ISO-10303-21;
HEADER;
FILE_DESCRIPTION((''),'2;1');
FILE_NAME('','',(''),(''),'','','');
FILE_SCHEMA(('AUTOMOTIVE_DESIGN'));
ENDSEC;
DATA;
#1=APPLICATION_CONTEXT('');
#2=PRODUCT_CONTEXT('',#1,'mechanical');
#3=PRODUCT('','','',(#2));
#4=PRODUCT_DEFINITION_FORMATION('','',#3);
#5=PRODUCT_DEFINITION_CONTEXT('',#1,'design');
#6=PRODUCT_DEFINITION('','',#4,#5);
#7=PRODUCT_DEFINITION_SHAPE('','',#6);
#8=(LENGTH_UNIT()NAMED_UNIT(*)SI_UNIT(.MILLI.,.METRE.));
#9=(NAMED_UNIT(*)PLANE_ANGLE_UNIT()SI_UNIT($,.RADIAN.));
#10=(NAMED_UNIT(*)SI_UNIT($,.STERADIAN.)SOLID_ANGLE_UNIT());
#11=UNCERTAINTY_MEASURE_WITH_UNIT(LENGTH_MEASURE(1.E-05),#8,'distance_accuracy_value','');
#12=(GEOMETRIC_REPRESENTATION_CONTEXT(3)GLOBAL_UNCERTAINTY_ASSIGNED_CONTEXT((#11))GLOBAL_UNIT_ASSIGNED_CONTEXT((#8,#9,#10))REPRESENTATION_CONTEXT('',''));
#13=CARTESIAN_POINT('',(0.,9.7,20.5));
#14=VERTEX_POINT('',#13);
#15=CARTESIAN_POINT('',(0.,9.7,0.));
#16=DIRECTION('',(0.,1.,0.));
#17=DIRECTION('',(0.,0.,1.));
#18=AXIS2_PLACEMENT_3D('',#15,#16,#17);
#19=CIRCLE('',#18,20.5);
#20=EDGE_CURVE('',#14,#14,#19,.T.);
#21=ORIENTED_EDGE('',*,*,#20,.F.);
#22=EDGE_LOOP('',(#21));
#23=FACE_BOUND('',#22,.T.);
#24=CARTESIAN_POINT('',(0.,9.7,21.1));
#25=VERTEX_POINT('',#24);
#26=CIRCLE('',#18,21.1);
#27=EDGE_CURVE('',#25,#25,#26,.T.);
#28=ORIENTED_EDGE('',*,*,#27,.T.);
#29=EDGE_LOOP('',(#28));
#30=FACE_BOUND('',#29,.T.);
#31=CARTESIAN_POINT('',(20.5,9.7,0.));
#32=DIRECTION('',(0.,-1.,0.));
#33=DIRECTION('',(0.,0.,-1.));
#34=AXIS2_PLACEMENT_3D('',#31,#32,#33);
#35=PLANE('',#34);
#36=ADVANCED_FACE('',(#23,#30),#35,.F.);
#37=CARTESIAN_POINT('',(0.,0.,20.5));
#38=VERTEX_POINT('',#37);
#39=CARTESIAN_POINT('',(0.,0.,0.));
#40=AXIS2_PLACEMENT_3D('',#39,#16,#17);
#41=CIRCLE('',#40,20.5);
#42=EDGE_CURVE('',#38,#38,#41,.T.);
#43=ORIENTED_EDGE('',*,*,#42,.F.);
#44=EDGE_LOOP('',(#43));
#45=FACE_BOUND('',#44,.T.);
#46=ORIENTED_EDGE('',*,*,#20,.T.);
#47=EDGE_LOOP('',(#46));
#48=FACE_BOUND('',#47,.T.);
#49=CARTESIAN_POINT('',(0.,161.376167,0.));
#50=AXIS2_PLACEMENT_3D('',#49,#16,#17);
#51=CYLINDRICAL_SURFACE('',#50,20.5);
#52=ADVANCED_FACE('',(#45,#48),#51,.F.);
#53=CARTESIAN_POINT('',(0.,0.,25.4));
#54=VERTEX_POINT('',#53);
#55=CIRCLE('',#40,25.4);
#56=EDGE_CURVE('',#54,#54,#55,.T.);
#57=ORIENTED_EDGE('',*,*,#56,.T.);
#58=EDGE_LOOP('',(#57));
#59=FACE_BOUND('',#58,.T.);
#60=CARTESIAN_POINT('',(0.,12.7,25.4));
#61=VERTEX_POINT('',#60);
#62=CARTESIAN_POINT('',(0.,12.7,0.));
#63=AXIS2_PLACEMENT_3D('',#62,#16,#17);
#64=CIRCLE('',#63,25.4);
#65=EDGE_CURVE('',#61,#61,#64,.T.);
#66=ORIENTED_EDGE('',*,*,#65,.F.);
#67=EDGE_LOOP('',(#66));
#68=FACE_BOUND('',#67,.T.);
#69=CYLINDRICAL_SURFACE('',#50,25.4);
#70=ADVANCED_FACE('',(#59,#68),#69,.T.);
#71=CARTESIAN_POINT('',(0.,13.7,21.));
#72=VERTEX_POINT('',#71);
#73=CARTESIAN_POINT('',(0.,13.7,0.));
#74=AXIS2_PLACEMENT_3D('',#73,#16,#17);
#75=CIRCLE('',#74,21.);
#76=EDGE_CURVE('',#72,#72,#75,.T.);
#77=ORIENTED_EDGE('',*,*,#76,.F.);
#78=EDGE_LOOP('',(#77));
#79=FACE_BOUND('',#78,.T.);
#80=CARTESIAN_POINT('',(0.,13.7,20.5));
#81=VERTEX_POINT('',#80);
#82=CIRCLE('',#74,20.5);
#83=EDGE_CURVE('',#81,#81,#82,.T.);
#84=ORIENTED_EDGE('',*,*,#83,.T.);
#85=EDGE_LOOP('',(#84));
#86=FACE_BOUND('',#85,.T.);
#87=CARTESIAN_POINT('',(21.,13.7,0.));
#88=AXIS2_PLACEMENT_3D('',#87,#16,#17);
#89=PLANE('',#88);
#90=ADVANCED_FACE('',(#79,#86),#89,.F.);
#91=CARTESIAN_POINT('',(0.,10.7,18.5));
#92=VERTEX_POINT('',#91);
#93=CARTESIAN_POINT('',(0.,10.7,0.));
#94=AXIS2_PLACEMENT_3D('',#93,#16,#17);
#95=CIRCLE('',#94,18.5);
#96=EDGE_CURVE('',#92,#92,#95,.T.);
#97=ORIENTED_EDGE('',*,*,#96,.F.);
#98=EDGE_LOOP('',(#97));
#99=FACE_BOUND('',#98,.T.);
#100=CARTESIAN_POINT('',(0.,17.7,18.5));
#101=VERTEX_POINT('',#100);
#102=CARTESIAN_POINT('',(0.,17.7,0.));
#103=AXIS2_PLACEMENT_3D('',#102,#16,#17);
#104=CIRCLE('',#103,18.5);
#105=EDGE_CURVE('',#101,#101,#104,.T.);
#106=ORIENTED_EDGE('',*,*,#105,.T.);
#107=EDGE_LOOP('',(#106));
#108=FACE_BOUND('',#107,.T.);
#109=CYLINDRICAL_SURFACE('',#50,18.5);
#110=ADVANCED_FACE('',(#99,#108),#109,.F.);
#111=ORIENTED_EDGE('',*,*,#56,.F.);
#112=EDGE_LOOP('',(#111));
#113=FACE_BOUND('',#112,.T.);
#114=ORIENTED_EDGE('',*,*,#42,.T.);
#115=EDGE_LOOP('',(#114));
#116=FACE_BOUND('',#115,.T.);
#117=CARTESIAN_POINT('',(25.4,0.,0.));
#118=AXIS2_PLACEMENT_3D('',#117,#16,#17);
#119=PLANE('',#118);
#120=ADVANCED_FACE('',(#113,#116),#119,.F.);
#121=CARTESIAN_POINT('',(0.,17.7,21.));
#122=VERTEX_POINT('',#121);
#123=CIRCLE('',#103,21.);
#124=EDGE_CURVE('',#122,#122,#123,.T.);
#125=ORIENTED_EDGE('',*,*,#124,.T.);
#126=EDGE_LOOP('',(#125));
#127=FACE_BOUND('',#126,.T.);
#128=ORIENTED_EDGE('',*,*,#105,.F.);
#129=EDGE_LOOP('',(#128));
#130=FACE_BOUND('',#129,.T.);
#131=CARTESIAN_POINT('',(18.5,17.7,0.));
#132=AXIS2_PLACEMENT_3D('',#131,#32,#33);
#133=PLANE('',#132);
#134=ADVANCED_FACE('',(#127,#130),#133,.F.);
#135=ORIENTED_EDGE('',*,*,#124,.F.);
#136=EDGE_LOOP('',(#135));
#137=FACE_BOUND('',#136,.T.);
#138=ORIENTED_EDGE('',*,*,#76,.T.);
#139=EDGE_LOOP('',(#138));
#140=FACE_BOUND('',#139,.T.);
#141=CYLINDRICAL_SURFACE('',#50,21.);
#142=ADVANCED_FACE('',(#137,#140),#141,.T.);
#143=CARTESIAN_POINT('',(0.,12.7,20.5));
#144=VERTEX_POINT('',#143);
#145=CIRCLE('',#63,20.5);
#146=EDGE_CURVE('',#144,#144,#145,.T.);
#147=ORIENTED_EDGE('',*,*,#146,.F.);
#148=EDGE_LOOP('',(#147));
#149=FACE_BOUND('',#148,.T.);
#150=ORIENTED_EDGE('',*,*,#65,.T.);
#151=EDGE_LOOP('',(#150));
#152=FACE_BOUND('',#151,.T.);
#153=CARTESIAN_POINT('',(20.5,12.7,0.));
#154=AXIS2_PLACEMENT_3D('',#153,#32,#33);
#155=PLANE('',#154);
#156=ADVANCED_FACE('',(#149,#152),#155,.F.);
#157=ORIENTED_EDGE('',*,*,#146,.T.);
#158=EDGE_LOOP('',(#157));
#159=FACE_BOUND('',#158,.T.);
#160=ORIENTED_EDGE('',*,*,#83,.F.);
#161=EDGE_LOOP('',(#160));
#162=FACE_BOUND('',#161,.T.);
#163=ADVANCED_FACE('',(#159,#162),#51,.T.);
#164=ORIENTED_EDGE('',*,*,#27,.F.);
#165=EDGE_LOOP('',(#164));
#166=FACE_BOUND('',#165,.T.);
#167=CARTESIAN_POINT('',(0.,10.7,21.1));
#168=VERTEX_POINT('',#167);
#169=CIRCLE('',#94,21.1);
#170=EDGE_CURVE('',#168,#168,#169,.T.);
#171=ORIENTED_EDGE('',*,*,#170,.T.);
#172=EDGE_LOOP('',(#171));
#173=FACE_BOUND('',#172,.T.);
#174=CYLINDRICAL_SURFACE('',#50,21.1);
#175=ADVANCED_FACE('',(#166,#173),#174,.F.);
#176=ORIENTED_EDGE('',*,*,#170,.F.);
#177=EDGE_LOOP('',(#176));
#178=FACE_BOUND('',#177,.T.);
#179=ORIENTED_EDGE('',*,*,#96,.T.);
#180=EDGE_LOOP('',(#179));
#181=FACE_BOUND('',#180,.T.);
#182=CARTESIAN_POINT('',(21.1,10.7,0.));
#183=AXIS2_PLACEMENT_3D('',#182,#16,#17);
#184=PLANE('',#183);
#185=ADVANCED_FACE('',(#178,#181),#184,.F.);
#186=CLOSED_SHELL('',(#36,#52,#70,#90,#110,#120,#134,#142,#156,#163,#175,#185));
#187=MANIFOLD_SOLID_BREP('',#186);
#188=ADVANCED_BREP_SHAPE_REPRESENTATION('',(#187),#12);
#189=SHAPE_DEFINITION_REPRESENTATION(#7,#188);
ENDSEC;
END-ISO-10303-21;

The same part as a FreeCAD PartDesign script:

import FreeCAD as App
import Part
import Sketcher

V = App.Vector

doc = App.newDocument("Part")
params = doc.addObject("Spreadsheet::Sheet", "Params")
for row, (alias, value) in enumerate([
    ("sketch1_height", "7 mm"),
    ("sketch1_height2", "1 mm"),
    ("sketch1_height3", "4 mm"),
    ("sketch1_width", "2.5 mm"),
    ("sketch1_width2", "2.6 mm"),
    ("revolution_angle", "360 deg"),
], start=1):
    params.set(f"A{row}", alias)
    params.set(f"B{row}", "=" + value)
    params.setAlias(f"B{row}", alias)

body = doc.addObject("PartDesign::Body", "Body")

# Sketch on XY plane
sketch1 = body.newObject("Sketcher::SketchObject", "Sketch")
sketch1.AttachmentSupport = (doc.getObject("XY_Plane"), [""])
sketch1.MapMode = "FlatFace"
sketch1.addGeometry([
    Part.LineSegment(V(21, 17.7, 0), V(18.5, 17.7, 0)),  # 0
    Part.LineSegment(V(18.5, 17.7, 0), V(18.5, 10.7, 0)),  # 1
    Part.LineSegment(V(18.5, 10.7, 0), V(21.1, 10.7, 0)),  # 2
    Part.LineSegment(V(21.1, 10.7, 0), V(21.1, 9.7, 0)),  # 3
    Part.LineSegment(V(21.1, 9.7, 0), V(20.5, 9.7, 0)),  # 4
    Part.LineSegment(V(20.5, 9.7, 0), V(20.5, 0, 0)),  # 5
    Part.LineSegment(V(20.5, 0, 0), V(25.4, 0, 0)),  # 6
    Part.LineSegment(V(25.4, 0, 0), V(25.4, 12.7, 0)),  # 7
    Part.LineSegment(V(25.4, 12.7, 0), V(20.5, 12.7, 0)),  # 8
    Part.LineSegment(V(20.5, 12.7, 0), V(20.5, 13.7, 0)),  # 9
    Part.LineSegment(V(20.5, 13.7, 0), V(21, 13.7, 0)),  # 10
    Part.LineSegment(V(21, 13.7, 0), V(21, 17.7, 0)),  # 11
], False)
sketch1.addConstraint([
    Sketcher.Constraint("Coincident", 0, 2, 1, 1),
    Sketcher.Constraint("Coincident", 1, 2, 2, 1),
    Sketcher.Constraint("Coincident", 2, 2, 3, 1),
    Sketcher.Constraint("Coincident", 3, 2, 4, 1),
    Sketcher.Constraint("Coincident", 4, 2, 5, 1),
    Sketcher.Constraint("Coincident", 5, 2, 6, 1),
    Sketcher.Constraint("Coincident", 6, 2, 7, 1),
    Sketcher.Constraint("Coincident", 7, 2, 8, 1),
    Sketcher.Constraint("Coincident", 8, 2, 9, 1),
    Sketcher.Constraint("Coincident", 9, 2, 10, 1),
    Sketcher.Constraint("Coincident", 10, 2, 11, 1),
    Sketcher.Constraint("Coincident", 11, 2, 0, 1),
    Sketcher.Constraint("Horizontal", 0),
    Sketcher.Constraint("Vertical", 1),
    Sketcher.Constraint("Horizontal", 2),
    Sketcher.Constraint("Vertical", 3),
    Sketcher.Constraint("Horizontal", 4),
    Sketcher.Constraint("Vertical", 5),
    Sketcher.Constraint("Horizontal", 6),
    Sketcher.Constraint("Vertical", 7),
    Sketcher.Constraint("Horizontal", 8),
    Sketcher.Constraint("Vertical", 9),
    Sketcher.Constraint("Horizontal", 10),
    Sketcher.Constraint("Vertical", 11),
    Sketcher.Constraint("PointOnObject", 5, 2, -1),
    Sketcher.Constraint("Vertical", 5, 2, 8, 2),
    Sketcher.Constraint("Equal", 3, 9),
    Sketcher.Constraint("DistanceY", 1, 2, 1, 1, 7.0),
    Sketcher.Constraint("DistanceY", 3, 2, 3, 1, 1.0),
    Sketcher.Constraint("DistanceY", 11, 1, 11, 2, 4.0),
    Sketcher.Constraint("DistanceX", 0, 2, 0, 1, 2.5),
    Sketcher.Constraint("DistanceX", 2, 1, 2, 2, 2.6),
    Sketcher.Constraint("DistanceX", 4, 2, 4, 1, 0.6),
    Sketcher.Constraint("DistanceX", 6, 1, 6, 2, 4.9),
    Sketcher.Constraint("DistanceY", 5, 2, 5, 1, 9.7),
    Sketcher.Constraint("DistanceX", -1, 1, 10, 2, 21.0),
])
sketch1.setExpression("Constraints[27]", "Params.sketch1_height")
sketch1.setExpression("Constraints[28]", "Params.sketch1_height2")
sketch1.setExpression("Constraints[29]", "Params.sketch1_height3")
sketch1.setExpression("Constraints[30]", "Params.sketch1_width")
sketch1.setExpression("Constraints[31]", "Params.sketch1_width2")
revolution = body.newObject("PartDesign::Revolution", "Revolution")
revolution.Profile = sketch1
revolution.ReferenceAxis = (sketch1, ["V_Axis"])
revolution.setExpression("Angle", "Params.revolution_angle")

doc.recompute()
